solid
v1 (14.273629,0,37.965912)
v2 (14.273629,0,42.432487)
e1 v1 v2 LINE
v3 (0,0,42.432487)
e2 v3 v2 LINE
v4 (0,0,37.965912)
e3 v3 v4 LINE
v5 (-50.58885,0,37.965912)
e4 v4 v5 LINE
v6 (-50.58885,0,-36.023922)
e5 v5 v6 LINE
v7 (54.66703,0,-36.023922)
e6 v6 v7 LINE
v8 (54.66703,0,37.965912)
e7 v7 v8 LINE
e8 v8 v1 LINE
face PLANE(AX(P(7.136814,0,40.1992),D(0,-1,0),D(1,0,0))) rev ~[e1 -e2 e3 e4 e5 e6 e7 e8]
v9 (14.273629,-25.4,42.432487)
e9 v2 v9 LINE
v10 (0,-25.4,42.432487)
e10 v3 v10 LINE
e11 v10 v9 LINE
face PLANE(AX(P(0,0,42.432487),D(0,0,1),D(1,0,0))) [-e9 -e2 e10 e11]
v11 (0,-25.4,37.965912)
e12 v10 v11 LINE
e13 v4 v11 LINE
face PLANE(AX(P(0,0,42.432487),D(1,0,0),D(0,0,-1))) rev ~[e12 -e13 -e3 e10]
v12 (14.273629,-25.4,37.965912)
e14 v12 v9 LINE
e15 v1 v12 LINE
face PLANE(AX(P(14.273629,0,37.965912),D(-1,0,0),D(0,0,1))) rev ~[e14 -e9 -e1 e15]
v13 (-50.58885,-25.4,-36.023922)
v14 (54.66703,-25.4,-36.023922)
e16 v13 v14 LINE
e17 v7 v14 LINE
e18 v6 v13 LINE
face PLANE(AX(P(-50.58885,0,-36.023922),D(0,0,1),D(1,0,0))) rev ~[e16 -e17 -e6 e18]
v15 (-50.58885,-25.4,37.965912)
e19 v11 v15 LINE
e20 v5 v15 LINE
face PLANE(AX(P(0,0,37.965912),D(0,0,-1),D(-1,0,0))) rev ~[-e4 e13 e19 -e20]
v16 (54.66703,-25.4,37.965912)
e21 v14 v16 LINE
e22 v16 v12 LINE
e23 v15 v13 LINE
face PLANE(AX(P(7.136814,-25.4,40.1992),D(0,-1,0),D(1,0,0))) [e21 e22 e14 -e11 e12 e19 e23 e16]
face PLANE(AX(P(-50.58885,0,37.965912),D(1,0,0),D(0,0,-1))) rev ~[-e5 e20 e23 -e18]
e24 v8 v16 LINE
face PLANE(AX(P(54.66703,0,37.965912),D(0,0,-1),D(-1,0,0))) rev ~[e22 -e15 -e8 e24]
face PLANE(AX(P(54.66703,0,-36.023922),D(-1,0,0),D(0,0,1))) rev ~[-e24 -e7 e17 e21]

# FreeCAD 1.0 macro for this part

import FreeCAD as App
import Part
import Sketcher
from FreeCAD import Vector
Q = App.Units.Quantity

doc = App.newDocument("Part")
body = doc.addObject("PartDesign::Body", "Body")

sketch1 = doc.addObject("Sketcher::SketchObject", "Sketch")
body.addObject(sketch1)
sketch1.AttachmentSupport = (doc.XZ_Plane, [""])
sketch1.MapMode = "FlatFace"
sketch1.addGeometry(Part.LineSegment(Vector(0, 42.4, 0), Vector(0, 38, 0)), False)
sketch1.addGeometry(Part.LineSegment(Vector(0, 38, 0), Vector(-50.6, 38, 0)), False)
sketch1.addGeometry(Part.LineSegment(Vector(-50.6, 38, 0), Vector(-50.6, -36, 0)), False)
sketch1.addGeometry(Part.LineSegment(Vector(-50.6, -36, 0), Vector(54.7, -36, 0)), False)
sketch1.addGeometry(Part.LineSegment(Vector(54.7, -36, 0), Vector(54.7, 38, 0)), False)
sketch1.addGeometry(Part.LineSegment(Vector(54.7, 38, 0), Vector(14.3, 38, 0)), False)
sketch1.addGeometry(Part.LineSegment(Vector(14.3, 38, 0), Vector(14.3, 42.4, 0)), False)
sketch1.addGeometry(Part.LineSegment(Vector(14.3, 42.4, 0), Vector(0, 42.4, 0)), False)
sketch1.addConstraint(Sketcher.Constraint("Coincident", 0, 2, 1, 1))
sketch1.addConstraint(Sketcher.Constraint("Coincident", 1, 2, 2, 1))
sketch1.addConstraint(Sketcher.Constraint("Coincident", 2, 2, 3, 1))
sketch1.addConstraint(Sketcher.Constraint("Coincident", 3, 2, 4, 1))
sketch1.addConstraint(Sketcher.Constraint("Coincident", 4, 2, 5, 1))
sketch1.addConstraint(Sketcher.Constraint("Coincident", 5, 2, 6, 1))
sketch1.addConstraint(Sketcher.Constraint("Coincident", 6, 2, 7, 1))
sketch1.addConstraint(Sketcher.Constraint("Coincident", 7, 2, 0, 1))
sketch1.addConstraint(Sketcher.Constraint("Vertical", 0))
sketch1.addConstraint(Sketcher.Constraint("Horizontal", 1))
sketch1.addConstraint(Sketcher.Constraint("Vertical", 2))
sketch1.addConstraint(Sketcher.Constraint("Horizontal", 3))
sketch1.addConstraint(Sketcher.Constraint("Vertical", 4))
sketch1.addConstraint(Sketcher.Constraint("Horizontal", 5))
sketch1.addConstraint(Sketcher.Constraint("Vertical", 6))
sketch1.addConstraint(Sketcher.Constraint("Horizontal", 7))
sketch1.addConstraint(Sketcher.Constraint("PointOnObject", 0, 2, -2))
sketch1.addConstraint(Sketcher.Constraint("Horizontal", 1, 2, 4, 2))
sketch1.addConstraint(Sketcher.Constraint("DistanceX", 5, 2, 5, 1, 40.393401))
sketch1.addConstraint(Sketcher.Constraint("DistanceX", 1, 2, 1, 1, 50.58885))
sketch1.addConstraint(Sketcher.Constraint("DistanceX", 3, 1, 3, 2, 105.255879))
sketch1.addConstraint(Sketcher.Constraint("DistanceY", 0, 2, 0, 1, 4.466575))
sketch1.addConstraint(Sketcher.Constraint("DistanceY", 2, 2, 2, 1, 73.989835))
sketch1.addConstraint(Sketcher.Constraint("DistanceY", -1, 1, 0, 2, 37.965912))
pad1 = doc.addObject("PartDesign::Pad", "Pad")
body.addObject(pad1)
pad1.Profile = sketch1
pad1.Length = Q("1 in")

doc.recompute()
